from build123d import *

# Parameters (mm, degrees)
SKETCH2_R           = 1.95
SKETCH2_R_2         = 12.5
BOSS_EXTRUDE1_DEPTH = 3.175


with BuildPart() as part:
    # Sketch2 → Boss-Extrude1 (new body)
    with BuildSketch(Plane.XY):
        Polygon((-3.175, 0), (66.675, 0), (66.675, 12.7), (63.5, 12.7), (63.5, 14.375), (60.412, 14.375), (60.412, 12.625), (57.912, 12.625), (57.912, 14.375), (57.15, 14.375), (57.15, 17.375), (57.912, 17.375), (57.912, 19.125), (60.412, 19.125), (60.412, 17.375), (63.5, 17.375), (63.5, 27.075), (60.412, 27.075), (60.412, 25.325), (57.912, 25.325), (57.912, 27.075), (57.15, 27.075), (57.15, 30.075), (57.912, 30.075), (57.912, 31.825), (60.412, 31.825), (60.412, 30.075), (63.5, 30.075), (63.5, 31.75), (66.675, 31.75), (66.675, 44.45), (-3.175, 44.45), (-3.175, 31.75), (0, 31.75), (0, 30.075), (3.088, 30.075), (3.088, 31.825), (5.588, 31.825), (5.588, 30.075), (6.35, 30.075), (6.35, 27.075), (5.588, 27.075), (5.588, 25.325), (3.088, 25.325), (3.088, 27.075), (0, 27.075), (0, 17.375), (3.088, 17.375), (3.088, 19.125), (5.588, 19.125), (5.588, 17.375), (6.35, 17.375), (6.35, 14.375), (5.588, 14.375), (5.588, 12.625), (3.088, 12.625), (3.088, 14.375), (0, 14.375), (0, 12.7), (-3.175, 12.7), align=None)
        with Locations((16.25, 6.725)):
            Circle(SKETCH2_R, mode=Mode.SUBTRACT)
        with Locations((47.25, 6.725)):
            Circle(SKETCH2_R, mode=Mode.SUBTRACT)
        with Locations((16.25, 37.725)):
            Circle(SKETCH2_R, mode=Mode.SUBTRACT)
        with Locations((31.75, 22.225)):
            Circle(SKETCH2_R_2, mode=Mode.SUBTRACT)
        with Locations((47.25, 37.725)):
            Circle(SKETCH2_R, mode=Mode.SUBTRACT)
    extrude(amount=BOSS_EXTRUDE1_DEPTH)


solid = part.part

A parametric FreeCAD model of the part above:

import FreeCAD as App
import Part
import Sketcher
from FreeCAD import Vector
Q = App.Units.Quantity

doc = App.newDocument("Part")
body = doc.addObject("PartDesign::Body", "Body")

sketch1 = body.newObject("Sketcher::SketchObject", "Sketch")
sketch1.AttachmentSupport = (doc.getObject("XY_Plane"), [""])
sketch1.MapMode = "FlatFace"
sketch1.addGeometry([
    Part.LineSegment(Vector(-3.175, 0, 0), Vector(66.675, 0, 0)),
    Part.LineSegment(Vector(66.675, 0, 0), Vector(66.675, 12.7, 0)),
    Part.LineSegment(Vector(66.675, 12.7, 0), Vector(63.5, 12.7, 0)),
    Part.LineSegment(Vector(63.5, 12.7, 0), Vector(63.5, 14.375, 0)),
    Part.LineSegment(Vector(63.5, 14.375, 0), Vector(60.412, 14.375, 0)),
    Part.LineSegment(Vector(60.412, 14.375, 0), Vector(60.412, 12.625, 0)),
    Part.LineSegment(Vector(60.412, 12.625, 0), Vector(57.912, 12.625, 0)),
    Part.LineSegment(Vector(57.912, 12.625, 0), Vector(57.912, 14.375, 0)),
    Part.LineSegment(Vector(57.912, 14.375, 0), Vector(57.15, 14.375, 0)),
    Part.LineSegment(Vector(57.15, 14.375, 0), Vector(57.15, 17.375, 0)),
    Part.LineSegment(Vector(57.15, 17.375, 0), Vector(57.912, 17.375, 0)),
    Part.LineSegment(Vector(57.912, 17.375, 0), Vector(57.912, 19.125, 0)),
    Part.LineSegment(Vector(57.912, 19.125, 0), Vector(60.412, 19.125, 0)),
    Part.LineSegment(Vector(60.412, 19.125, 0), Vector(60.412, 17.375, 0)),
    Part.LineSegment(Vector(60.412, 17.375, 0), Vector(63.5, 17.375, 0)),
    Part.LineSegment(Vector(63.5, 17.375, 0), Vector(63.5, 27.075, 0)),
    Part.LineSegment(Vector(63.5, 27.075, 0), Vector(60.412, 27.075, 0)),
    Part.LineSegment(Vector(60.412, 27.075, 0), Vector(60.412, 25.325, 0)),
    Part.LineSegment(Vector(60.412, 25.325, 0), Vector(57.912, 25.325, 0)),
    Part.LineSegment(Vector(57.912, 25.325, 0), Vector(57.912, 27.075, 0)),
    Part.LineSegment(Vector(57.912, 27.075, 0), Vector(57.15, 27.075, 0)),
    Part.LineSegment(Vector(57.15, 27.075, 0), Vector(57.15, 30.075, 0)),
    Part.LineSegment(Vector(57.15, 30.075, 0), Vector(57.912, 30.075, 0)),
    Part.LineSegment(Vector(57.912, 30.075, 0), Vector(57.912, 31.825, 0)),
    Part.LineSegment(Vector(57.912, 31.825, 0), Vector(60.412, 31.825, 0)),
    Part.LineSegment(Vector(60.412, 31.825, 0), Vector(60.412, 30.075, 0)),
    Part.LineSegment(Vector(60.412, 30.075, 0), Vector(63.5, 30.075, 0)),
    Part.LineSegment(Vector(63.5, 30.075, 0), Vector(63.5, 31.75, 0)),
    Part.LineSegment(Vector(63.5, 31.75, 0), Vector(66.675, 31.75, 0)),
    Part.LineSegment(Vector(66.675, 31.75, 0), Vector(66.675, 44.45, 0)),
    Part.LineSegment(Vector(66.675, 44.45, 0), Vector(-3.175, 44.45, 0)),
    Part.LineSegment(Vector(-3.175, 44.45, 0), Vector(-3.175, 31.75, 0)),
    Part.LineSegment(Vector(-3.175, 31.75, 0), Vector(0, 31.75, 0)),
    Part.LineSegment(Vector(0, 31.75, 0), Vector(0, 30.075, 0)),
    Part.LineSegment(Vector(0, 30.075, 0), Vector(3.088, 30.075, 0)),
    Part.LineSegment(Vector(3.088, 30.075, 0), Vector(3.088, 31.825, 0)),
    Part.LineSegment(Vector(3.088, 31.825, 0), Vector(5.588, 31.825, 0)),
    Part.LineSegment(Vector(5.588, 31.825, 0), Vector(5.588, 30.075, 0)),
    Part.LineSegment(Vector(5.588, 30.075, 0), Vector(6.35, 30.075, 0)),
    Part.LineSegment(Vector(6.35, 30.075, 0), Vector(6.35, 27.075, 0)),
    Part.LineSegment(Vector(6.35, 27.075, 0), Vector(5.588, 27.075, 0)),
    Part.LineSegment(Vector(5.588, 27.075, 0), Vector(5.588, 25.325, 0)),
    Part.LineSegment(Vector(5.588, 25.325, 0), Vector(3.088, 25.325, 0)),
    Part.LineSegment(Vector(3.088, 25.325, 0), Vector(3.088, 27.075, 0)),
    Part.LineSegment(Vector(3.088, 27.075, 0), Vector(0, 27.075, 0)),
    Part.LineSegment(Vector(0, 27.075, 0), Vector(0, 17.375, 0)),
    Part.LineSegment(Vector(0, 17.375, 0), Vector(3.088, 17.375, 0)),
    Part.LineSegment(Vector(3.088, 17.375, 0), Vector(3.088, 19.125, 0)),
    Part.LineSegment(Vector(3.088, 19.125, 0), Vector(5.588, 19.125, 0)),
    Part.LineSegment(Vector(5.588, 19.125, 0), Vector(5.588, 17.375, 0)),
    Part.LineSegment(Vector(5.588, 17.375, 0), Vector(6.35, 17.375, 0)),
    Part.LineSegment(Vector(6.35, 17.375, 0), Vector(6.35, 14.375, 0)),
    Part.LineSegment(Vector(6.35, 14.375, 0), Vector(5.588, 14.375, 0)),
    Part.LineSegment(Vector(5.588, 14.375, 0), Vector(5.588, 12.625, 0)),
    Part.LineSegment(Vector(5.588, 12.625, 0), Vector(3.088, 12.625, 0)),
    Part.LineSegment(Vector(3.088, 12.625, 0), Vector(3.088, 14.375, 0)),
    Part.LineSegment(Vector(3.088, 14.375, 0), Vector(0, 14.375, 0)),
    Part.LineSegment(Vector(0, 14.375, 0), Vector(0, 12.7, 0)),
    Part.LineSegment(Vector(0, 12.7, 0), Vector(-3.175, 12.7, 0)),
    Part.LineSegment(Vector(-3.175, 12.7, 0), Vector(-3.175, 0, 0)),
    Part.Circle(Vector(16.25, 6.725, 0), Vector(0, 0, 1), 1.95),
    Part.Circle(Vector(47.25, 6.725, 0), Vector(0, 0, 1), 1.95),
    Part.Circle(Vector(31.75, 22.225, 0), Vector(0, 0, 1), 12.5),
    Part.Circle(Vector(16.25, 37.725, 0), Vector(0, 0, 1), 1.95),
    Part.Circle(Vector(47.25, 37.725, 0), Vector(0, 0, 1), 1.95),
], False)
sketch1.addConstraint([
    Sketcher.Constraint("Coincident", 0, 2, 1, 1),
    Sketcher.Constraint("Coincident", 1, 2, 2, 1),
    Sketcher.Constraint("Coincident", 2, 2, 3, 1),
    Sketcher.Constraint("Coincident", 3, 2, 4, 1),
    Sketcher.Constraint("Coincident", 4, 2, 5, 1),
    Sketcher.Constraint("Coincident", 5, 2, 6, 1),
    Sketcher.Constraint("Coincident", 6, 2, 7, 1),
    Sketcher.Constraint("Coincident", 7, 2, 8, 1),
    Sketcher.Constraint("Coincident", 8, 2, 9, 1),
    Sketcher.Constraint("Coincident", 9, 2, 10, 1),
    Sketcher.Constraint("Coincident", 10, 2, 11, 1),
    Sketcher.Constraint("Coincident", 11, 2, 12, 1),
    Sketcher.Constraint("Coincident", 12, 2, 13, 1),
    Sketcher.Constraint("Coincident", 13, 2, 14, 1),
    Sketcher.Constraint("Coincident", 14, 2, 15, 1),
    Sketcher.Constraint("Coincident", 15, 2, 16, 1),
    Sketcher.Constraint("Coincident", 16, 2, 17, 1),
    Sketcher.Constraint("Coincident", 17, 2, 18, 1),
    Sketcher.Constraint("Coincident", 18, 2, 19, 1),
    Sketcher.Constraint("Coincident", 19, 2, 20, 1),
    Sketcher.Constraint("Coincident", 20, 2, 21, 1),
    Sketcher.Constraint("Coincident", 21, 2, 22, 1),
    Sketcher.Constraint("Coincident", 22, 2, 23, 1),
    Sketcher.Constraint("Coincident", 23, 2, 24, 1),
    Sketcher.Constraint("Coincident", 24, 2, 25, 1),
    Sketcher.Constraint("Coincident", 25, 2, 26, 1),
    Sketcher.Constraint("Coincident", 26, 2, 27, 1),
    Sketcher.Constraint("Coincident", 27, 2, 28, 1),
    Sketcher.Constraint("Coincident", 28, 2, 29, 1),
    Sketcher.Constraint("Coincident", 29, 2, 30, 1),
    Sketcher.Constraint("Coincident", 30, 2, 31, 1),
    Sketcher.Constraint("Coincident", 31, 2, 32, 1),
    Sketcher.Constraint("Coincident", 32, 2, 33, 1),
    Sketcher.Constraint("Coincident", 33, 2, 34, 1),
    Sketcher.Constraint("Coincident", 34, 2, 35, 1),
    Sketcher.Constraint("Coincident", 35, 2, 36, 1),
    Sketcher.Constraint("Coincident", 36, 2, 37, 1),
    Sketcher.Constraint("Coincident", 37, 2, 38, 1),
    Sketcher.Constraint("Coincident", 38, 2, 39, 1),
    Sketcher.Constraint("Coincident", 39, 2, 40, 1),
    Sketcher.Constraint("Coincident", 40, 2, 41, 1),
    Sketcher.Constraint("Coincident", 41, 2, 42, 1),
    Sketcher.Constraint("Coincident", 42, 2, 43, 1),
    Sketcher.Constraint("Coincident", 43, 2, 44, 1),
    Sketcher.Constraint("Coincident", 44, 2, 45, 1),
    Sketcher.Constraint("Coincident", 45, 2, 46, 1),
    Sketcher.Constraint("Coincident", 46, 2, 47, 1),
    Sketcher.Constraint("Coincident", 47, 2, 48, 1),
    Sketcher.Constraint("Coincident", 48, 2, 49, 1),
    Sketcher.Constraint("Coincident", 49, 2, 50, 1),
    Sketcher.Constraint("Coincident", 50, 2, 51, 1),
    Sketcher.Constraint("Coincident", 51, 2, 52, 1),
    Sketcher.Constraint("Coincident", 52, 2, 53, 1),
    Sketcher.Constraint("Coincident", 53, 2, 54, 1),
    Sketcher.Constraint("Coincident", 54, 2, 55, 1),
    Sketcher.Constraint("Coincident", 55, 2, 56, 1),
    Sketcher.Constraint("Coincident", 56, 2, 57, 1),
    Sketcher.Constraint("Coincident", 57, 2, 58, 1),
    Sketcher.Constraint("Coincident", 58, 2, 59, 1),
    Sketcher.Constraint("Coincident", 59, 2, 0, 1),
    Sketcher.Constraint("Horizontal", 0),
    Sketcher.Constraint("Vertical", 1),
    Sketcher.Constraint("Horizontal", 2),
    Sketcher.Constraint("Vertical", 3),
    Sketcher.Constraint("Horizontal", 4),
    Sketcher.Constraint("Vertical", 5),
    Sketcher.Constraint("Horizontal", 6),
    Sketcher.Constraint("Vertical", 7),
    Sketcher.Constraint("Horizontal", 8),
    Sketcher.Constraint("Vertical", 9),
    Sketcher.Constraint("Horizontal", 10),
    Sketcher.Constraint("Vertical", 11),
    Sketcher.Constraint("Horizontal", 12),
    Sketcher.Constraint("Vertical", 13),
    Sketcher.Constraint("Horizontal", 14),
    Sketcher.Constraint("Vertical", 15),
    Sketcher.Constraint("Horizontal", 16),
    Sketcher.Constraint("Vertical", 17),
    Sketcher.Constraint("Horizontal", 18),
    Sketcher.Constraint("Vertical", 19),
    Sketcher.Constraint("Horizontal", 20),
    Sketcher.Constraint("Vertical", 21),
    Sketcher.Constraint("Horizontal", 22),
    Sketcher.Constraint("Vertical", 23),
    Sketcher.Constraint("Horizontal", 24),
    Sketcher.Constraint("Vertical", 25),
    Sketcher.Constraint("Horizontal", 26),
    Sketcher.Constraint("Vertical", 27),
    Sketcher.Constraint("Horizontal", 28),
    Sketcher.Constraint("Vertical", 29),
    Sketcher.Constraint("Horizontal", 30),
    Sketcher.Constraint("Vertical", 31),
    Sketcher.Constraint("Horizontal", 32),
    Sketcher.Constraint("Vertical", 33),
    Sketcher.Constraint("Horizontal", 34),
    Sketcher.Constraint("Vertical", 35),
    Sketcher.Constraint("Horizontal", 36),
    Sketcher.Constraint("Vertical", 37),
    Sketcher.Constraint("Horizontal", 38),
    Sketcher.Constraint("Vertical", 39),
    Sketcher.Constraint("Horizontal", 40),
    Sketcher.Constraint("Vertical", 41),
    Sketcher.Constraint("Horizontal", 42),
    Sketcher.Constraint("Vertical", 43),
    Sketcher.Constraint("Horizontal", 44),
    Sketcher.Constraint("Vertical", 45),
    Sketcher.Constraint("Horizontal", 46),
    Sketcher.Constraint("Vertical", 47),
    Sketcher.Constraint("Horizontal", 48),
    Sketcher.Constraint("Vertical", 49),
    Sketcher.Constraint("Horizontal", 50),
    Sketcher.Constraint("Vertical", 51),
    Sketcher.Constraint("Horizontal", 52),
    Sketcher.Constraint("Vertical", 53),
    Sketcher.Constraint("Horizontal", 54),
    Sketcher.Constraint("Vertical", 55),
    Sketcher.Constraint("Horizontal", 56),
    Sketcher.Constraint("Vertical", 57),
    Sketcher.Constraint("Horizontal", 58),
    Sketcher.Constraint("Vertical", 59),
    Sketcher.Constraint("Equal", 60, 61),
    Sketcher.Constraint("Equal", 61, 63),
    Sketcher.Constraint("Equal", 63, 64),
    Sketcher.Constraint("PointOnObject", 0, 2, -1),
    Sketcher.Constraint("PointOnObject", 32, 2, -2),
    Sketcher.Constraint("PointOnObject", 44, 2, -2),
    Sketcher.Constraint("PointOnObject", 56, 2, -2),
    Sketcher.Constraint("Horizontal", 60, 3, 61, 3),
    Sketcher.Constraint("Horizontal", 63, 3, 64, 3),
    Sketcher.Constraint("Horizontal", 4, 2, 7, 2),
    Sketcher.Constraint("Horizontal", 10, 2, 13, 2),
    Sketcher.Constraint("Horizontal", 16, 2, 19, 2),
    Sketcher.Constraint("Horizontal", 22, 2, 25, 2),
    Sketcher.Constraint("Horizontal", 28, 2, 31, 2),
    Sketcher.Constraint("Horizontal", 26, 2, 33, 2),
    Sketcher.Constraint("Horizontal", 24, 2, 35, 2),
    Sketcher.Constraint("Horizontal", 34, 2, 37, 2),
    Sketcher.Constraint("Horizontal", 20, 2, 39, 2),
    Sketcher.Constraint("Horizontal", 18, 2, 41, 2),
    Sketcher.Constraint("Horizontal", 40, 2, 43, 2),
    Sketcher.Constraint("Horizontal", 14, 2, 45, 2),
    Sketcher.Constraint("Horizontal", 12, 2, 47, 2),
    Sketcher.Constraint("Horizontal", 46, 2, 49, 2),
    Sketcher.Constraint("Horizontal", 8, 2, 51, 2),
    Sketcher.Constraint("Horizontal", 6, 2, 53, 2),
    Sketcher.Constraint("Horizontal", 52, 2, 55, 2),
    Sketcher.Constraint("Horizontal", 2, 2, 57, 2),
    Sketcher.Constraint("Vertical", 60, 3, 63, 3),
    Sketcher.Constraint("Vertical", 61, 3, 64, 3),
    Sketcher.Constraint("Vertical", 7, 2, 10, 2),
    Sketcher.Constraint("Vertical", 5, 2, 12, 2),
    Sketcher.Constraint("Vertical", 3, 2, 14, 2),
    Sketcher.Constraint("Vertical", 13, 2, 16, 2),
    Sketcher.Constraint("Vertical", 11, 2, 18, 2),
    Sketcher.Constraint("Vertical", 9, 2, 20, 2),
    Sketcher.Constraint("Vertical", 19, 2, 22, 2),
    Sketcher.Constraint("Vertical", 17, 2, 24, 2),
    Sketcher.Constraint("Vertical", 15, 2, 26, 2),
    Sketcher.Constraint("Vertical", 1, 2, 28, 2),
    Sketcher.Constraint("Vertical", 37, 2, 40, 2),
    Sketcher.Constraint("Vertical", 35, 2, 42, 2),
    Sketcher.Constraint("Vertical", 43, 2, 46, 2),
    Sketcher.Constraint("Vertical", 41, 2, 48, 2),
    Sketcher.Constraint("Vertical", 39, 2, 50, 2),
    Sketcher.Constraint("Vertical", 49, 2, 52, 2),
    Sketcher.Constraint("Vertical", 47, 2, 54, 2),
    Sketcher.Constraint("Vertical", 31, 2, 58, 2),
    Sketcher.Constraint("Equal", 28, 32),
    Sketcher.Constraint("Equal", 26, 34),
    Sketcher.Constraint("Equal", 24, 36),
    Sketcher.Constraint("Equal", 22, 38),
    Sketcher.Constraint("Equal", 7, 11),
    Sketcher.Constraint("Equal", 13, 17),
    Sketcher.Constraint("Equal", 9, 21),
    Sketcher.Constraint("Equal", 19, 23),
    Sketcher.Constraint("Equal", 3, 27),
    Sketcher.Constraint("Equal", 1, 29),
    Sketcher.Constraint("Diameter", 62, Q("25 mm")),
    Sketcher.Constraint("Diameter", 60, Q("3.9 mm")),
    Sketcher.Constraint("DistanceY", 9, 1, 9, 2, Q("3 mm")),
    Sketcher.Constraint("DistanceX", 6, 2, 6, 1, Q("2.5 mm")),
    Sketcher.Constraint("DistanceY", 1, 1, 1, 2, Q("12.7 mm")),
    Sketcher.Constraint("DistanceY", 15, 1, 15, 2, Q("9.7 mm")),
    Sketcher.Constraint("DistanceX", 0, 1, 0, 2, Q("69.85 mm")),
    Sketcher.Constraint("DistanceY", 5, 2, 5, 1, Q("1.75 mm")),
    Sketcher.Constraint("DistanceX", -1, 1, 2, 2, Q("63.5 mm")),
    Sketcher.Constraint("DistanceX", 4, 2, 4, 1, Q("3.088 mm")),
    Sketcher.Constraint("DistanceX", 8, 2, 8, 1, Q("0.762 mm")),
    Sketcher.Constraint("DistanceY", 3, 1, 3, 2, Q("1.675 mm")),
    Sketcher.Constraint("DistanceX", -1, 1, 60, 3, Q("16.25 mm")),
    Sketcher.Constraint("DistanceX", -1, 1, 61, 3, Q("47.25 mm")),
    Sketcher.Constraint("DistanceX", -1, 1, 62, 3, Q("31.75 mm")),
    Sketcher.Constraint("DistanceY", -1, 1, 60, 3, Q("6.725 mm")),
    Sketcher.Constraint("DistanceY", -1, 1, 62, 3, Q("22.225 mm")),
    Sketcher.Constraint("DistanceY", -1, 1, 63, 3, Q("37.725 mm")),
])
pad1 = body.newObject("PartDesign::Pad", "Pad")
pad1.Profile = sketch1
pad1.Length = 3.175

doc.recompute()
